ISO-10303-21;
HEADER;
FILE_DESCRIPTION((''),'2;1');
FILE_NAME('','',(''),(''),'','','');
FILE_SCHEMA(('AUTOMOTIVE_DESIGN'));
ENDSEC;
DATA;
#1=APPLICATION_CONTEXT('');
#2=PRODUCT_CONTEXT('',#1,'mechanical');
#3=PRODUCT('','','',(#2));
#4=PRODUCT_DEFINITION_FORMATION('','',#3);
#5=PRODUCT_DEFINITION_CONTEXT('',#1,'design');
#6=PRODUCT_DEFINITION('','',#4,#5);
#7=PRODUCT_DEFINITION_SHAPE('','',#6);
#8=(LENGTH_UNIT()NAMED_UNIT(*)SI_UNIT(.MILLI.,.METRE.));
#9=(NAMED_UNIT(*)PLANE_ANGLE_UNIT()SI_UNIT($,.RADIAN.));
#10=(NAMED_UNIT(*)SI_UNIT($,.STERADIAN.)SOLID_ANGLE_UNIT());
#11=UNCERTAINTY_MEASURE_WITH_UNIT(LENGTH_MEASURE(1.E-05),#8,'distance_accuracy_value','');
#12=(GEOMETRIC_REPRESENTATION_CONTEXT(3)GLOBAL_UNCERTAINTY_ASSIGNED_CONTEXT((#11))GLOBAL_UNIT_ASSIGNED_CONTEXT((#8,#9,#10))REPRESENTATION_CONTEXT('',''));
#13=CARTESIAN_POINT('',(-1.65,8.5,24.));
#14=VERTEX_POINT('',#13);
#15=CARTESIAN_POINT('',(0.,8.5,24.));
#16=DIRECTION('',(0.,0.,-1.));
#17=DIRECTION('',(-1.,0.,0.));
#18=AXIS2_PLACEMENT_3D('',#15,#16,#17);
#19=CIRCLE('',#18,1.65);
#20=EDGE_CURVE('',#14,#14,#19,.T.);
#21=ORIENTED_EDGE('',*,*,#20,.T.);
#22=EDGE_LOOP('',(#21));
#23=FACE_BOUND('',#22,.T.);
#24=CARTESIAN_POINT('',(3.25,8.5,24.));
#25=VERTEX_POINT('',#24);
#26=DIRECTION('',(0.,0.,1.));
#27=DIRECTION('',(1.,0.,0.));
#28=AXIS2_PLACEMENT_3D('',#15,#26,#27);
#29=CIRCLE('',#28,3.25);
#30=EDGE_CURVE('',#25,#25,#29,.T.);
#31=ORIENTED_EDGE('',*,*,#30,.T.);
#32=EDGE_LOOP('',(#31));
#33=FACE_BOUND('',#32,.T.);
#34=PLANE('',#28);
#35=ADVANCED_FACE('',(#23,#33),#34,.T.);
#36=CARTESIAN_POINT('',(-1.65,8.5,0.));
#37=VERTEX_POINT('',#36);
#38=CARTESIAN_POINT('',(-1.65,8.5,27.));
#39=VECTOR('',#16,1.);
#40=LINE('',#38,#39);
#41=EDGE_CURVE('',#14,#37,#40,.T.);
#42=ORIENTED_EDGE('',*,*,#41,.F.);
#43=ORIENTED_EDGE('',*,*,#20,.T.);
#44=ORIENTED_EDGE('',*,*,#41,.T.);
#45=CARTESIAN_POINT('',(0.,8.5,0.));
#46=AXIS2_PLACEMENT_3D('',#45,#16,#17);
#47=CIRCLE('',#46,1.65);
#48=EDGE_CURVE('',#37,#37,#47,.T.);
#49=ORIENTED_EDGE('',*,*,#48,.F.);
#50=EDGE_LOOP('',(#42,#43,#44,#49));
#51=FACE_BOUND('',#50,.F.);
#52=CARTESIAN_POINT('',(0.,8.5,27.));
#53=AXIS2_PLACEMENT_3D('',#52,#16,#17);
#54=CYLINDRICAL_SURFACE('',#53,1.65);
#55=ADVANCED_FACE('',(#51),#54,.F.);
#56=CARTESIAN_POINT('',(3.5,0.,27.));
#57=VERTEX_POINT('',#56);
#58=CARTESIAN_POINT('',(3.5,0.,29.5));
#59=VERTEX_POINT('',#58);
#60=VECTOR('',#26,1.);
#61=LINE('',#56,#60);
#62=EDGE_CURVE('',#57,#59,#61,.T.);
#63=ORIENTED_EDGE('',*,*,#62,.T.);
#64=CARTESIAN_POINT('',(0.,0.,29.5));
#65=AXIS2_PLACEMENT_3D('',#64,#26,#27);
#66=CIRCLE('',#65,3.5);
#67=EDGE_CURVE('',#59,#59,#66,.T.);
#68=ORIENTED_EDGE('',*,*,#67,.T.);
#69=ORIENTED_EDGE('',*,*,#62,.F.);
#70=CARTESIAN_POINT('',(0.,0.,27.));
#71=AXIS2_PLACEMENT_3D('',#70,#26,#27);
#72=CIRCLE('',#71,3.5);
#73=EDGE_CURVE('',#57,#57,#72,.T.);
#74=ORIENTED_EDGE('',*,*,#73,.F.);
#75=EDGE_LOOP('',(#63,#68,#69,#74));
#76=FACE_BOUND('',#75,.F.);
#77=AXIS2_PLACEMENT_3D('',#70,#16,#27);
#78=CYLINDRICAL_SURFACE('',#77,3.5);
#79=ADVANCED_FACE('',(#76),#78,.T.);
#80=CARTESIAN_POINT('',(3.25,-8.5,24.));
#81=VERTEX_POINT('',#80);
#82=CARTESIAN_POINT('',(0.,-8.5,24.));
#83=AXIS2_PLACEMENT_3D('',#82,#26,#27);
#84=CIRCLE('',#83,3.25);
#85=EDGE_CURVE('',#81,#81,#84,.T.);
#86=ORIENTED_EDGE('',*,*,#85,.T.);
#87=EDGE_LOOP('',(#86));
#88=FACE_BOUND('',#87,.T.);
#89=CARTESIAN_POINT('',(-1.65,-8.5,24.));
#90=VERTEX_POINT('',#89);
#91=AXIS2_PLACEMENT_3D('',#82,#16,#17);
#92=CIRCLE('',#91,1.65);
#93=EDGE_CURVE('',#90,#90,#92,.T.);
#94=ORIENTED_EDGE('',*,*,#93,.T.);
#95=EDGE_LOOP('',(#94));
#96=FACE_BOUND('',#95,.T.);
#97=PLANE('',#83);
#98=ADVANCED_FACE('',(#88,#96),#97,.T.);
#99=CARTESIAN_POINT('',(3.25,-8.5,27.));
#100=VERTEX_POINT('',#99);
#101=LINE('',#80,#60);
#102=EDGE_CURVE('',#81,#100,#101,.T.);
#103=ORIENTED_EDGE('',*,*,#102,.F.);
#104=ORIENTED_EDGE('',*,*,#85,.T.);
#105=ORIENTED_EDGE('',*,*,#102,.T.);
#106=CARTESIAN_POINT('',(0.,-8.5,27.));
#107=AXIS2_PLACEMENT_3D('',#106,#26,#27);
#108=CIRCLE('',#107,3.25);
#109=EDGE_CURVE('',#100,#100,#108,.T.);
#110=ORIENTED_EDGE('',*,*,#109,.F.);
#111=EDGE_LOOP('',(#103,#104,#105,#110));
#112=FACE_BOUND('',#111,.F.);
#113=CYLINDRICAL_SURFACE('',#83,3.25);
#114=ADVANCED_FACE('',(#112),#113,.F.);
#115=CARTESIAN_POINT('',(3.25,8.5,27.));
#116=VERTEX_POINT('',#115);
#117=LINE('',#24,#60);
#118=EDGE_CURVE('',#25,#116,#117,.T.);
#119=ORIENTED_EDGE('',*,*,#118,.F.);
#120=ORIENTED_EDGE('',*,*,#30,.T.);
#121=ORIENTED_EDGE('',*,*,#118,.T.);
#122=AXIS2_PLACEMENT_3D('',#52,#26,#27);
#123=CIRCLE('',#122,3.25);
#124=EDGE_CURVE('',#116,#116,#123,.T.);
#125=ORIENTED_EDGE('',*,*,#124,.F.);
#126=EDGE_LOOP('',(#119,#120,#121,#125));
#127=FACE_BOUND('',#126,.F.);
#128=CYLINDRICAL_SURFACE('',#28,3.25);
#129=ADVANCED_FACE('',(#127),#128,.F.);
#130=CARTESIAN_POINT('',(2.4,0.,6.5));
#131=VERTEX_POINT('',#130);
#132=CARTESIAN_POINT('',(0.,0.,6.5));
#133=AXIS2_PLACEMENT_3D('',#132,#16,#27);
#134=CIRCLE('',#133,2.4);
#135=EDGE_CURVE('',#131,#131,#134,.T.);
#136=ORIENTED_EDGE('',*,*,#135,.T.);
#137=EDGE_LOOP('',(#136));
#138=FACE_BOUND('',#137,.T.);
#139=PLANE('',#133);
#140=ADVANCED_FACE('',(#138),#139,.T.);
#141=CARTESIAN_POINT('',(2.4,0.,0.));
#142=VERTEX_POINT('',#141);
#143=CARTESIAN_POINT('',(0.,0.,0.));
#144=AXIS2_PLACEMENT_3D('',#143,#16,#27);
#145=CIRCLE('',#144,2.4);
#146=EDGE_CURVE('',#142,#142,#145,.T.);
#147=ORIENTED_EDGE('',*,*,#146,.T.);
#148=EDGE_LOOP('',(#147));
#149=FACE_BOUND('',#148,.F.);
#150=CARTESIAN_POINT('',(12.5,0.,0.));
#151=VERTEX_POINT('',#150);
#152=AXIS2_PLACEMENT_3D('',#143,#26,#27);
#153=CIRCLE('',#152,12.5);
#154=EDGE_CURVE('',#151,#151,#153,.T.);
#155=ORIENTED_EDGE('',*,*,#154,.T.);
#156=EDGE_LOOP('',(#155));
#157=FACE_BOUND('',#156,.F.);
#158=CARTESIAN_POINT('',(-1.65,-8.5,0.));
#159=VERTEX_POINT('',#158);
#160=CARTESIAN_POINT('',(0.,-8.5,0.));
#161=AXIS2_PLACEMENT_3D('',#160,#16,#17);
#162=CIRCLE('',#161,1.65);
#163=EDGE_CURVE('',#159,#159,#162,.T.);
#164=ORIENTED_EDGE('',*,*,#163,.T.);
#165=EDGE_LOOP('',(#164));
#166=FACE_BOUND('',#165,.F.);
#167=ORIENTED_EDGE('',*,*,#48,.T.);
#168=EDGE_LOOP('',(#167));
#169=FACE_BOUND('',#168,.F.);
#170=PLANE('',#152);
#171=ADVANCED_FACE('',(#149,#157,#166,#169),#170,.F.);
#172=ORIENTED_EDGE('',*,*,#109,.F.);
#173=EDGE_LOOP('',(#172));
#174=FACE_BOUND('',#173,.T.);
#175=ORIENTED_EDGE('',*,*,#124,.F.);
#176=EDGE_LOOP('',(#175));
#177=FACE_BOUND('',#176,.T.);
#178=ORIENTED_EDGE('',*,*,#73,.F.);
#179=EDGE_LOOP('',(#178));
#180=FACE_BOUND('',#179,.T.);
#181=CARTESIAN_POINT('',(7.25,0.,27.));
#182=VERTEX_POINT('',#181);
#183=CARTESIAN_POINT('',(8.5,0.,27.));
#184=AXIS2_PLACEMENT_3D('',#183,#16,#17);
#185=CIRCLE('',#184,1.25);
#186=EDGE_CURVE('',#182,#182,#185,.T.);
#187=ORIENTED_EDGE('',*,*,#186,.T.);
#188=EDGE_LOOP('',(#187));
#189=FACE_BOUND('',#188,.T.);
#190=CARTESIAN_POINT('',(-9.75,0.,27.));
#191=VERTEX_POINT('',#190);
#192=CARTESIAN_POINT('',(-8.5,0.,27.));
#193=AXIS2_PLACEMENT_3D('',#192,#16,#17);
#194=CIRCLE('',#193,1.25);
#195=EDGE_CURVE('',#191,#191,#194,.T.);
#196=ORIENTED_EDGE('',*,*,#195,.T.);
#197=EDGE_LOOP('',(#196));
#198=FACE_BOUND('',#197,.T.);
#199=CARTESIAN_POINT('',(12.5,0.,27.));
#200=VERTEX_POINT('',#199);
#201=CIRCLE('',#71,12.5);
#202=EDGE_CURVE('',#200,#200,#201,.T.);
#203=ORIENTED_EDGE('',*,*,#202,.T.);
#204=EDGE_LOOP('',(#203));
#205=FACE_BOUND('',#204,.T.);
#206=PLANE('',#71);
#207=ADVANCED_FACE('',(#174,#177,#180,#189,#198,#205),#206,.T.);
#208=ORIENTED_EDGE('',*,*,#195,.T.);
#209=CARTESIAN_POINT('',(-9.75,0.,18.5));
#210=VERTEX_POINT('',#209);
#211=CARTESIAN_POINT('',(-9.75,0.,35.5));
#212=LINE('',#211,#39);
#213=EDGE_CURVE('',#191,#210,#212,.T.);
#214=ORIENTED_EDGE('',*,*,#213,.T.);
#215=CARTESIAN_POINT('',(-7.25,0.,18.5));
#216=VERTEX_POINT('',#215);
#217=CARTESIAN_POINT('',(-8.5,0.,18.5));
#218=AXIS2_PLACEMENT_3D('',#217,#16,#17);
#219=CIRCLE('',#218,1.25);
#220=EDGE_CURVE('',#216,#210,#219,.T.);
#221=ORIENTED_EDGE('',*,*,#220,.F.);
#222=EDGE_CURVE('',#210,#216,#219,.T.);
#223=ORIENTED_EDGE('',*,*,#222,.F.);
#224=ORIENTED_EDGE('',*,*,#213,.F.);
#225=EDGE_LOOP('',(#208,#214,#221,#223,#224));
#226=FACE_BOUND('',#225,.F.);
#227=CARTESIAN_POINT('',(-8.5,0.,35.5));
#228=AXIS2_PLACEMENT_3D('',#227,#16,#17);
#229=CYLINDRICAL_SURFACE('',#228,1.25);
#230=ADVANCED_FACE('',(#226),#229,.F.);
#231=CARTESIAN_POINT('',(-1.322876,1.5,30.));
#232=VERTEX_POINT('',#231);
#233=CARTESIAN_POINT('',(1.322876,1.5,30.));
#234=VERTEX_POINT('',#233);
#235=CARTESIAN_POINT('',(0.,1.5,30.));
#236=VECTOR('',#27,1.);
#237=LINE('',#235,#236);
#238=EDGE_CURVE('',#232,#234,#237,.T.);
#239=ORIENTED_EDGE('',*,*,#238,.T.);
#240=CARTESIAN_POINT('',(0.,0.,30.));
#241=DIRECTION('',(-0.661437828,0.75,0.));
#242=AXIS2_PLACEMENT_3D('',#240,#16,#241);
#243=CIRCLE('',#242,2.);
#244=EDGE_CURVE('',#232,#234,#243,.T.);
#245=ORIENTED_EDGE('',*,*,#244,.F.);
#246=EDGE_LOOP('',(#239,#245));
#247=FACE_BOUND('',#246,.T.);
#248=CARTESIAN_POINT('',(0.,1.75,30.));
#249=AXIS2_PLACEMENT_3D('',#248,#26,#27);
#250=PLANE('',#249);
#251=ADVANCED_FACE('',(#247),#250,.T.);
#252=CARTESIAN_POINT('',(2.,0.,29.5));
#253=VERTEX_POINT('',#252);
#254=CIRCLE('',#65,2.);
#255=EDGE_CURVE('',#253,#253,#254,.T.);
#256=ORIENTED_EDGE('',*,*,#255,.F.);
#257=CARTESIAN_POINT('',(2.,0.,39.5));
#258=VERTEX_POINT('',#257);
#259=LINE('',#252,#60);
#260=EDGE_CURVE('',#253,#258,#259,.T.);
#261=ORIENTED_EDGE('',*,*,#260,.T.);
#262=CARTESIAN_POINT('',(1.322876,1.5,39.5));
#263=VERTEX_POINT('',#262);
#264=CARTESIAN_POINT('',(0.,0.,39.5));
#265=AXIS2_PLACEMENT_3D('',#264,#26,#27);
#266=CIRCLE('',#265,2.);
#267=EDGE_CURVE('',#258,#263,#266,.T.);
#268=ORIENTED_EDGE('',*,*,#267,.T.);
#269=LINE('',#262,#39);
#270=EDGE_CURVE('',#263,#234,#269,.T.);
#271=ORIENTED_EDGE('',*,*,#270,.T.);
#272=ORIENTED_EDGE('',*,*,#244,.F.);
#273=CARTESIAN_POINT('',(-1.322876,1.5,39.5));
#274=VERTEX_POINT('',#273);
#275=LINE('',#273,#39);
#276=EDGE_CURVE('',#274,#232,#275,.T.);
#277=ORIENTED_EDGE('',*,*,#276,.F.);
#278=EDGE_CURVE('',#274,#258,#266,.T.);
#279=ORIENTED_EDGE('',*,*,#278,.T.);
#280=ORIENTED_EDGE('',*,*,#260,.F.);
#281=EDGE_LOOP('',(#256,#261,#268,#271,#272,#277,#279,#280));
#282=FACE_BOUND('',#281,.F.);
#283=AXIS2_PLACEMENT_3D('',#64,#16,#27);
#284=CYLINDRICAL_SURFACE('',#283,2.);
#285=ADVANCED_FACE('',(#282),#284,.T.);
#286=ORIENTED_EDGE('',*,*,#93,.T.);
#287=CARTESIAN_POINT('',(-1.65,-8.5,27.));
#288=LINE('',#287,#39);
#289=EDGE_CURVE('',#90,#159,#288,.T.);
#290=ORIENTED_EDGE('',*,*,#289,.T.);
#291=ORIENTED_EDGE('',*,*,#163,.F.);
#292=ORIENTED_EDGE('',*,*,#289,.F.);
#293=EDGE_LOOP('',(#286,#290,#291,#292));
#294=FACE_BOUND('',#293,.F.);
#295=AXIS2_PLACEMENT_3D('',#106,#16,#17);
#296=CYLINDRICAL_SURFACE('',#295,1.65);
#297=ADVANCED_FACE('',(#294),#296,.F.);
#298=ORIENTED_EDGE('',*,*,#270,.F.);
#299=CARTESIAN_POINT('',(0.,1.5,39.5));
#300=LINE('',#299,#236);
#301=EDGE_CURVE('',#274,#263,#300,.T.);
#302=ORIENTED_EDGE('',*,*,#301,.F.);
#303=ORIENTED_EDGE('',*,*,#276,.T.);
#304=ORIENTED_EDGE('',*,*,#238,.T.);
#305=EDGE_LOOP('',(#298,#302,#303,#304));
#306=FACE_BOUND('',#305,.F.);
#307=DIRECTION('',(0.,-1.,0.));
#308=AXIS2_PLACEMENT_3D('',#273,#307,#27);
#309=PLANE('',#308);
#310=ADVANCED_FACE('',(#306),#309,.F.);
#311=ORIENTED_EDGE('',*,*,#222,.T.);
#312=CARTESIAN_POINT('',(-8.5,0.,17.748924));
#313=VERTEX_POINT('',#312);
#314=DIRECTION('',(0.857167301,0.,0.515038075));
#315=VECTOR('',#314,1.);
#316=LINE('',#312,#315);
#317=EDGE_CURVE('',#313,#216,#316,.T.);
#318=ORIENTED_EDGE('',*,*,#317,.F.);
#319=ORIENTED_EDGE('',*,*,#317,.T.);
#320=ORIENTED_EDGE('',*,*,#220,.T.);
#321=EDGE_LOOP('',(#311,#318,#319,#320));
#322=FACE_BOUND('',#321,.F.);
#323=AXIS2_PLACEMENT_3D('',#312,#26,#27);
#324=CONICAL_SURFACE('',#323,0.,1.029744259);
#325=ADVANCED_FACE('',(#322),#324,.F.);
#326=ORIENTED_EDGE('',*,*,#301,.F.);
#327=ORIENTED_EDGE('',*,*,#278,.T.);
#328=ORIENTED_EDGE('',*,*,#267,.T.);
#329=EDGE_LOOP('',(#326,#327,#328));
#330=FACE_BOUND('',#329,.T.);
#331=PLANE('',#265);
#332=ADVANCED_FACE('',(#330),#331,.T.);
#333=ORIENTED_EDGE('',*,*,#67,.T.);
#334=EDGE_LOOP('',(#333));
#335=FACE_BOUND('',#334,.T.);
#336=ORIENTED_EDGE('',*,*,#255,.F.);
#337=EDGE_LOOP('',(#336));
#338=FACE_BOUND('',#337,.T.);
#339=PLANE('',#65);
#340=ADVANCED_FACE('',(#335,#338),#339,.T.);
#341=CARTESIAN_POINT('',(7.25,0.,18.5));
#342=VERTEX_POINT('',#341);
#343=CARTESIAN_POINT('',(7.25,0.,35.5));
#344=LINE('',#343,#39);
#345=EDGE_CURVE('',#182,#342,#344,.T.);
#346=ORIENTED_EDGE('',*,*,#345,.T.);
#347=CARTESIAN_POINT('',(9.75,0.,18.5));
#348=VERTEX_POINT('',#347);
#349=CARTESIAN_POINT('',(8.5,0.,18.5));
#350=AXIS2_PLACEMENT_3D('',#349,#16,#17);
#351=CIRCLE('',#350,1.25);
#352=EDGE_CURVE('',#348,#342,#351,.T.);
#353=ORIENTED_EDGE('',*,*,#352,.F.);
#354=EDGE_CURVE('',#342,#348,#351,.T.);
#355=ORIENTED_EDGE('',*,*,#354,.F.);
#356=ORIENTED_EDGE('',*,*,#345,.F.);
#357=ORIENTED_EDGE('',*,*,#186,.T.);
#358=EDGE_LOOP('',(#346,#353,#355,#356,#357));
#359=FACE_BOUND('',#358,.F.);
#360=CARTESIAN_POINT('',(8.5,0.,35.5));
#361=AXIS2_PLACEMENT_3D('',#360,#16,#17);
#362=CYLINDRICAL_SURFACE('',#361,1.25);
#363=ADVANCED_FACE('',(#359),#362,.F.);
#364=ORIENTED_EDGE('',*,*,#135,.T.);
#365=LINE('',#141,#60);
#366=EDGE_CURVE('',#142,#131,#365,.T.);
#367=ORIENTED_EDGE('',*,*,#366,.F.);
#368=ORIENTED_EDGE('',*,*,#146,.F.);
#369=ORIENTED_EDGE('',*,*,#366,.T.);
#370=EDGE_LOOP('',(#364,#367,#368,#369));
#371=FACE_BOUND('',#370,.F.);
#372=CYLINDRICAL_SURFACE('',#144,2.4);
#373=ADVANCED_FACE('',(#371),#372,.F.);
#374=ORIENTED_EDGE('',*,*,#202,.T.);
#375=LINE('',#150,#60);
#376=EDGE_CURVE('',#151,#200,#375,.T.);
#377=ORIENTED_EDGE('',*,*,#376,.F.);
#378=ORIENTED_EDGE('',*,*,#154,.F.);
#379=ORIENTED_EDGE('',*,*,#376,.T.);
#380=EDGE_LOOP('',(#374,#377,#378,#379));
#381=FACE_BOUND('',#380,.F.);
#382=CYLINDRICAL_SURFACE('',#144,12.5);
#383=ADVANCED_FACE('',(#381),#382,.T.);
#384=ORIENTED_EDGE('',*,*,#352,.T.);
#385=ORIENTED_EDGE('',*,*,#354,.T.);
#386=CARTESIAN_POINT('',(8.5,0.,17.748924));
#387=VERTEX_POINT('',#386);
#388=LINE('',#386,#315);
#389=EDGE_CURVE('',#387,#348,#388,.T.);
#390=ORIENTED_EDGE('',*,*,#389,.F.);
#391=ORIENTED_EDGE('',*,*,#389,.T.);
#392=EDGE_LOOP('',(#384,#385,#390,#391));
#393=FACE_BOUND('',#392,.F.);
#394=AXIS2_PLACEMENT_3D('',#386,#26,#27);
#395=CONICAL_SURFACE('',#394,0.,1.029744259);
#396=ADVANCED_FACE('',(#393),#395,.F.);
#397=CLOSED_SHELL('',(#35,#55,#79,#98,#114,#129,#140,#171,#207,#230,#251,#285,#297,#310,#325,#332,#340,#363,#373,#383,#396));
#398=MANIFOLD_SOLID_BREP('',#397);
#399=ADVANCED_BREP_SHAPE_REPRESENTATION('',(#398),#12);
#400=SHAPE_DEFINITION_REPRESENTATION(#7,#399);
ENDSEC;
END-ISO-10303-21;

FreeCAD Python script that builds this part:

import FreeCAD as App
import Part
import Sketcher

V = App.Vector
Q = App.Units.Quantity


def add_polygon(sketch, points):
    """Adds a closed chain of lines whose ends are joined by coincident constraints."""
    first, n = sketch.GeometryCount, len(points)
    for a, b in zip(points, points[1:] + points[:1]):
        sketch.addGeometry(Part.LineSegment(App.Vector(*a, 0), App.Vector(*b, 0)), False)
    for i in range(n):
        sketch.addConstraint(Sketcher.Constraint("Coincident", first + i, 2, first + (i + 1) % n, 1))

doc = App.newDocument("Part")
body = doc.addObject("PartDesign::Body", "Body")

sketch1 = doc.addObject("Sketcher::SketchObject", "Sketch")
body.addObject(sketch1)
sketch1.AttachmentSupport = (doc.XY_Plane, [""])
sketch1.MapMode = "FlatFace"
sketch1.addGeometry(Part.Circle(V(0, 0, 0), V(0, 0, 1), 12), False)
sketch1.addConstraint(Sketcher.Constraint("Coincident", 0, 3, -1, 1))
sketch1.addConstraint(Sketcher.Constraint("Diameter", 0, Q("25 mm")))
pad1 = doc.addObject("PartDesign::Pad", "Pad")
body.addObject(pad1)
pad1.Profile = sketch1
pad1.Length = 27

sketch2 = doc.addObject("Sketcher::SketchObject", "Sketch001")
body.addObject(sketch2)
sketch2.AttachmentSupport = (doc.XY_Plane, [""])
sketch2.MapMode = "FlatFace"
sketch2.AttachmentOffset = App.Placement(V(0, 0, 27), App.Rotation())
sketch2.addGeometry(Part.Circle(V(0, 0, 0), V(0, 0, 1), 3.5), False)
sketch2.addConstraint(Sketcher.Constraint("Coincident", 0, 3, -1, 1))
sketch2.addConstraint(Sketcher.Constraint("Diameter", 0, Q("7 mm")))
pad2 = doc.addObject("PartDesign::Pad", "Pad001")
body.addObject(pad2)
pad2.Profile = sketch2
pad2.Length = 2.5

sketch3 = doc.addObject("Sketcher::SketchObject", "Sketch002")
body.addObject(sketch3)
sketch3.AttachmentSupport = (doc.XY_Plane, [""])
sketch3.MapMode = "FlatFace"
sketch3.AttachmentOffset = App.Placement(V(0, 0, 29.5), App.Rotation())
sketch3.addGeometry(Part.Circle(V(0, 0, 0), V(0, 0, 1), 2), False)
sketch3.addConstraint(Sketcher.Constraint("Coincident", 0, 3, -1, 1))
sketch3.addConstraint(Sketcher.Constraint("Diameter", 0, Q("4 mm")))
pad3 = doc.addObject("PartDesign::Pad", "Pad002")
body.addObject(pad3)
pad3.Profile = sketch3
pad3.Length = 10

sketch4 = doc.addObject("Sketcher::SketchObject", "Sketch003")
body.addObject(sketch4)
sketch4.AttachmentSupport = (doc.XY_Plane, [""])
sketch4.MapMode = "FlatFace"
sketch4.AttachmentOffset = App.Placement(V(0, 0, 27), App.Rotation())
sketch4.addGeometry(Part.Circle(V(-8.5, 0, 0), V(0, 0, 1), 1.2), False)
sketch4.addGeometry(Part.Circle(V(8.5, 0, 0), V(0, 0, 1), 1.2), False)
sketch4.addConstraint(Sketcher.Constraint("Equal", 0, 1))
sketch4.addConstraint(Sketcher.Constraint("Symmetric", 0, 3, 1, 3, -1, 1))
sketch4.addConstraint(Sketcher.Constraint("PointOnObject", 0, 3, -1))
sketch4.addConstraint(Sketcher.Constraint("Diameter", 0, Q("2.5 mm")))
sketch4.addConstraint(Sketcher.Constraint("DistanceX", 0, 3, 1, 3, Q("17 mm")))
doc.recompute()
hole = doc.addObject("PartDesign::Hole", "Hole")
body.addObject(hole)
hole.Profile = sketch4
hole.ThreadType = "None"
hole.Diameter = 2.5
hole.DepthType = "Dimension"
hole.Depth = 8.5
hole.DrillPoint = "Angled"
hole.DrillPointAngle = 118

sketch5 = doc.addObject("Sketcher::SketchObject", "Sketch004")
body.addObject(sketch5)
sketch5.AttachmentSupport = (doc.XY_Plane, [""])
sketch5.MapMode = "FlatFace"
sketch5.AttachmentOffset = App.Placement(V(0, 0, 27), App.Rotation())
sketch5.addGeometry(Part.Circle(V(0, 8.5, 0), V(0, 0, 1), 1.6), False)
sketch5.addGeometry(Part.Circle(V(0, -8.5, 0), V(0, 0, 1), 1.6), False)
sketch5.addConstraint(Sketcher.Constraint("Equal", 0, 1))
sketch5.addConstraint(Sketcher.Constraint("Symmetric", 0, 3, 1, 3, -1, 1))
sketch5.addConstraint(Sketcher.Constraint("PointOnObject", 0, 3, -2))
sketch5.addConstraint(Sketcher.Constraint("Diameter", 0, Q("3.3 mm")))
sketch5.addConstraint(Sketcher.Constraint("DistanceY", 1, 3, 0, 3, Q("17 mm")))
doc.recompute()
hole2 = doc.addObject("PartDesign::Hole", "Hole001")
body.addObject(hole2)
hole2.Profile = sketch5
hole2.ThreadType = "None"
hole2.Diameter = 3.3
hole2.DepthType = "ThroughAll"
hole2.HoleCutType = "Counterbore"
hole2.HoleCutDiameter = 6.5
hole2.HoleCutDepth = 3

sketch6 = doc.addObject("Sketcher::SketchObject", "Sketch005")
body.addObject(sketch6)
sketch6.AttachmentSupport = (doc.XY_Plane, [""])
sketch6.MapMode = "FlatFace"
sketch6.addGeometry(Part.Circle(V(0, 0, 0), V(0, 0, 1), 2.4), False)
sketch6.addConstraint(Sketcher.Constraint("Coincident", 0, 3, -1, 1))
sketch6.addConstraint(Sketcher.Constraint("Diameter", 0, Q("4.8 mm")))
pocket1 = doc.addObject("PartDesign::Pocket", "Pocket")
body.addObject(pocket1)
pocket1.Profile = sketch6
pocket1.Length = 6.5
pocket1.Reversed = True

sketch7 = doc.addObject("Sketcher::SketchObject", "Sketch006")
body.addObject(sketch7)
sketch7.AttachmentSupport = (doc.XY_Plane, [""])
sketch7.MapMode = "FlatFace"
sketch7.AttachmentOffset = App.Placement(V(0, 0, 39.5), App.Rotation())
add_polygon(sketch7, [(-1.3, 2), (-1.3, 1.5), (1.3, 1.5), (1.3, 2)])
sketch7.addConstraint(Sketcher.Constraint("Vertical", 0))
sketch7.addConstraint(Sketcher.Constraint("Horizontal", 1))
sketch7.addConstraint(Sketcher.Constraint("Vertical", 2))
sketch7.addConstraint(Sketcher.Constraint("Horizontal", 3))
sketch7.addConstraint(Sketcher.Constraint("DistanceY", 0, 2, 0, 1, Q("0.5 mm")))
sketch7.addConstraint(Sketcher.Constraint("DistanceY", -1, 1, 2, 2, Q("2 mm")))
sketch7.addConstraint(Sketcher.Constraint("DistanceX", 1, 1, 1, 2, Q("2.645751 mm")))
sketch7.addConstraint(Sketcher.Constraint("DistanceX", 0, 2, -1, 1, Q("1.322876 mm")))
pocket2 = doc.addObject("PartDesign::Pocket", "Pocket001")
body.addObject(pocket2)
pocket2.Profile = sketch7
pocket2.Length = 9.5

doc.recompute()
